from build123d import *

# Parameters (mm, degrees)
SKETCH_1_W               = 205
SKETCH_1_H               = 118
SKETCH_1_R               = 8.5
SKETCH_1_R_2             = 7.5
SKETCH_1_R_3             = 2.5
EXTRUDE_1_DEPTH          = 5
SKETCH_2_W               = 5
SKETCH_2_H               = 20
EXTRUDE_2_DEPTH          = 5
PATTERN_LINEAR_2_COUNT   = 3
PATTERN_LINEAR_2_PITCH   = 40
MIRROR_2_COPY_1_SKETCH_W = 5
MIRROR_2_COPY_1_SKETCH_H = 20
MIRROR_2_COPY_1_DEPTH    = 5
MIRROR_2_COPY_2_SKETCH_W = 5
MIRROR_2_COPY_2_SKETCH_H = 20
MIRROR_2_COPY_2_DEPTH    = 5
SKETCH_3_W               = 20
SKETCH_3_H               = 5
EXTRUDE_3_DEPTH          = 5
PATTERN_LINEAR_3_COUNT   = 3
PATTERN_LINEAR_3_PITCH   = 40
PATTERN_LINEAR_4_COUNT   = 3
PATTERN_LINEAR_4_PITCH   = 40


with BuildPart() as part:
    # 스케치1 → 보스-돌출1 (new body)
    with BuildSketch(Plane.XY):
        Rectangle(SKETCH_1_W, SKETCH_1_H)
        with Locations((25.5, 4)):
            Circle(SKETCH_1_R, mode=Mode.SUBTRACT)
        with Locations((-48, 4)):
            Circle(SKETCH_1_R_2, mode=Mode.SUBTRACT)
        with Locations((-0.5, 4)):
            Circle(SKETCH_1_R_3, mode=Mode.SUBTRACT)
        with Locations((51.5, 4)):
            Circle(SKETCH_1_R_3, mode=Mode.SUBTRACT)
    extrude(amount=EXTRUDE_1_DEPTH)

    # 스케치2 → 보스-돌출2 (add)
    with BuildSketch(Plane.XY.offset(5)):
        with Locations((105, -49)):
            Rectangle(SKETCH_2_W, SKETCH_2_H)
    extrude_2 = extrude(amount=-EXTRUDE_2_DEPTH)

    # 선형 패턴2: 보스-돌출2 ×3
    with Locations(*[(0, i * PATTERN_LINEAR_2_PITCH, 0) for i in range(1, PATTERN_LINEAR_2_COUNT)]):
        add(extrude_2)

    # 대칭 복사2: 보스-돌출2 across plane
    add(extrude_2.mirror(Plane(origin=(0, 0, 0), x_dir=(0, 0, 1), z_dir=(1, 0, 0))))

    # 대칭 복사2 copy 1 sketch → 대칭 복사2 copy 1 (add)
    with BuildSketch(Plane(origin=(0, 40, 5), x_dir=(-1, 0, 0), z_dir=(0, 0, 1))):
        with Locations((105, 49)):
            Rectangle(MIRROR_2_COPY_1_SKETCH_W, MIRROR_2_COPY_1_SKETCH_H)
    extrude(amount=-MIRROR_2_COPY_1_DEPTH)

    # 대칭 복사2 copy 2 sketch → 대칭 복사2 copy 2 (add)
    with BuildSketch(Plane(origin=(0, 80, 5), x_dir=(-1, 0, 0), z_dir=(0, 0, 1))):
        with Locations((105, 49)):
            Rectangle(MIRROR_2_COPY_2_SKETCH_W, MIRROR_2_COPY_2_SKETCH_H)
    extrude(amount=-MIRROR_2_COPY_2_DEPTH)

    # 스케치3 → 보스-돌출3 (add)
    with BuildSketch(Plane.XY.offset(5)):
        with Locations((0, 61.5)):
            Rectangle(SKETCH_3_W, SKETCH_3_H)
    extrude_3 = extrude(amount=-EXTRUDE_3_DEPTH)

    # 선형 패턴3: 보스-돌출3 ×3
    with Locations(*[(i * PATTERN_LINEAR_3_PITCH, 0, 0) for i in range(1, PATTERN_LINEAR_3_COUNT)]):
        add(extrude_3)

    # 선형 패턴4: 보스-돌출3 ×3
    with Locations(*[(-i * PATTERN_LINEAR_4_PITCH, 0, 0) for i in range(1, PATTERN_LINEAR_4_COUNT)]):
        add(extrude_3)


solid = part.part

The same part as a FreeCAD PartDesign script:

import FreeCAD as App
import Part
import Sketcher

V = App.Vector
Q = App.Units.Quantity


def add_polygon(sketch, points):
    """Adds a closed chain of lines whose ends are joined by coincident constraints."""
    first, n = sketch.GeometryCount, len(points)
    for a, b in zip(points, points[1:] + points[:1]):
        sketch.addGeometry(Part.LineSegment(App.Vector(*a, 0), App.Vector(*b, 0)), False)
    for i in range(n):
        sketch.addConstraint(Sketcher.Constraint("Coincident", first + i, 2, first + (i + 1) % n, 1))

doc = App.newDocument("Part")
body = doc.addObject("PartDesign::Body", "Body")

# Sketch on XY plane
sketch1 = body.newObject("Sketcher::SketchObject", "Sketch")
sketch1.AttachmentSupport = (doc.getObject("XY_Plane"), [""])
sketch1.MapMode = "FlatFace"
add_polygon(sketch1, [(-102.5, 59), (-102.5, -59), (102.5, -59), (102.5, 59)])  # lines 0-3
sketch1.addGeometry(Part.Circle(V(-48, 4, 0), V(0, 0, 1), 7.5), False)  # 4
sketch1.addGeometry(Part.Circle(V(-0.5, 4, 0), V(0, 0, 1), 2.5), False)  # 5
sketch1.addGeometry(Part.Circle(V(25.5, 4, 0), V(0, 0, 1), 8.5), False)  # 6
sketch1.addGeometry(Part.Circle(V(51.5, 4, 0), V(0, 0, 1), 2.5), False)  # 7
sketch1.addConstraint(Sketcher.Constraint("Vertical", 0))
sketch1.addConstraint(Sketcher.Constraint("Horizontal", 1))
sketch1.addConstraint(Sketcher.Constraint("Vertical", 2))
sketch1.addConstraint(Sketcher.Constraint("Horizontal", 3))
sketch1.addConstraint(Sketcher.Constraint("Equal", 5, 7))
sketch1.addConstraint(Sketcher.Constraint("Symmetric", 0, 2, 2, 2, -1, 1))
sketch1.addConstraint(Sketcher.Constraint("Horizontal", 4, 3, 5, 3))
sketch1.addConstraint(Sketcher.Constraint("Horizontal", 5, 3, 6, 3))
sketch1.addConstraint(Sketcher.Constraint("Horizontal", 6, 3, 7, 3))
sketch1.addConstraint(Sketcher.Constraint("Diameter", 4, Q("15 mm")))
sketch1.addConstraint(Sketcher.Constraint("Diameter", 5, Q("5 mm")))
sketch1.addConstraint(Sketcher.Constraint("Diameter", 6, Q("17 mm")))
sketch1.addConstraint(Sketcher.Constraint("DistanceX", 1, 1, 1, 2, Q("205 mm")))
sketch1.addConstraint(Sketcher.Constraint("DistanceY", 0, 2, 0, 1, Q("118 mm")))
sketch1.addConstraint(Sketcher.Constraint("DistanceX", 4, 3, -1, 1, Q("48 mm")))
sketch1.addConstraint(Sketcher.Constraint("DistanceY", -1, 1, 4, 3, Q("4 mm")))
sketch1.addConstraint(Sketcher.Constraint("DistanceX", 5, 3, 6, 3, Q("26 mm")))
sketch1.addConstraint(Sketcher.Constraint("DistanceX", 6, 3, 7, 3, Q("26 mm")))
sketch1.addConstraint(Sketcher.Constraint("DistanceX", 0, 2, 5, 3, Q("102 mm")))
pad1 = body.newObject("PartDesign::Pad", "Pad")
pad1.Profile = sketch1
pad1.Length = 5

# Sketch on XY plane
sketch2 = body.newObject("Sketcher::SketchObject", "Sketch001")
sketch2.AttachmentSupport = (doc.getObject("XY_Plane"), [""])
sketch2.MapMode = "FlatFace"
sketch2.AttachmentOffset = App.Placement(V(0, 0, 5), App.Rotation())
add_polygon(sketch2, [(102.5, -39), (102.5, -59), (107.5, -59), (107.5, -39)])  # lines 0-3
sketch2.addConstraint(Sketcher.Constraint("Vertical", 0))
sketch2.addConstraint(Sketcher.Constraint("Horizontal", 1))
sketch2.addConstraint(Sketcher.Constraint("Vertical", 2))
sketch2.addConstraint(Sketcher.Constraint("Horizontal", 3))
sketch2.addConstraint(Sketcher.Constraint("DistanceX", 1, 1, 1, 2, Q("5 mm")))
sketch2.addConstraint(Sketcher.Constraint("DistanceY", 0, 2, 0, 1, Q("20 mm")))
sketch2.addConstraint(Sketcher.Constraint("DistanceY", 0, 2, -1, 1, Q("59 mm")))
sketch2.addConstraint(Sketcher.Constraint("DistanceX", -1, 1, 0, 2, Q("102.5 mm")))
pad2 = body.newObject("PartDesign::Pad", "Pad001")
pad2.Profile = sketch2
pad2.Length = 5
pad2.Reversed = True
doc.recompute()

linearpattern = body.newObject("PartDesign::LinearPattern", "LinearPattern")
linearpattern.Originals = [pad2]
linearpattern.Direction = (doc.getObject("Y_Axis"), [""])
linearpattern.Mode = "offset"
linearpattern.Offset = 40
linearpattern.Occurrences = 3
body.Tip = linearpattern
doc.recompute()

mirrored = body.newObject("PartDesign::Mirrored", "Mirrored")
mirrored.Originals = [pad2]
mirrored.MirrorPlane = (doc.getObject("YZ_Plane"), [""])
body.Tip = mirrored

# Sketch on XY plane
sketch3 = body.newObject("Sketcher::SketchObject", "Sketch002")
sketch3.AttachmentSupport = (doc.getObject("XY_Plane"), [""])
sketch3.MapMode = "FlatFace"
sketch3.AttachmentOffset = App.Placement(V(0, 0, 5), App.Rotation())
add_polygon(sketch3, [(-102.5, -19), (-102.5, 1), (-107.5, 1), (-107.5, -19)])  # lines 0-3
sketch3.addConstraint(Sketcher.Constraint("Vertical", 0))
sketch3.addConstraint(Sketcher.Constraint("Horizontal", 1))
sketch3.addConstraint(Sketcher.Constraint("Vertical", 2))
sketch3.addConstraint(Sketcher.Constraint("Horizontal", 3))
sketch3.addConstraint(Sketcher.Constraint("DistanceX", 1, 2, 1, 1, Q("5 mm")))
sketch3.addConstraint(Sketcher.Constraint("DistanceY", 0, 1, 0, 2, Q("20 mm")))
sketch3.addConstraint(Sketcher.Constraint("DistanceY", -1, 1, 0, 2, Q("1 mm")))
sketch3.addConstraint(Sketcher.Constraint("DistanceX", 0, 2, -1, 1, Q("102.5 mm")))
pad3 = body.newObject("PartDesign::Pad", "Pad002")
pad3.Profile = sketch3
pad3.Length = 5
pad3.Reversed = True

# Sketch on XY plane
sketch4 = body.newObject("Sketcher::SketchObject", "Sketch003")
sketch4.AttachmentSupport = (doc.getObject("XY_Plane"), [""])
sketch4.MapMode = "FlatFace"
sketch4.AttachmentOffset = App.Placement(V(0, 0, 5), App.Rotation())
add_polygon(sketch4, [(-102.5, 21), (-102.5, 41), (-107.5, 41), (-107.5, 21)])  # lines 0-3
sketch4.addConstraint(Sketcher.Constraint("Vertical", 0))
sketch4.addConstraint(Sketcher.Constraint("Horizontal", 1))
sketch4.addConstraint(Sketcher.Constraint("Vertical", 2))
sketch4.addConstraint(Sketcher.Constraint("Horizontal", 3))
sketch4.addConstraint(Sketcher.Constraint("DistanceX", 1, 2, 1, 1, Q("5 mm")))
sketch4.addConstraint(Sketcher.Constraint("DistanceY", 0, 1, 0, 2, Q("20 mm")))
sketch4.addConstraint(Sketcher.Constraint("DistanceY", -1, 1, 0, 2, Q("41 mm")))
sketch4.addConstraint(Sketcher.Constraint("DistanceX", 0, 2, -1, 1, Q("102.5 mm")))
pad4 = body.newObject("PartDesign::Pad", "Pad003")
pad4.Profile = sketch4
pad4.Length = 5
pad4.Reversed = True

# Sketch on XY plane
sketch5 = body.newObject("Sketcher::SketchObject", "Sketch004")
sketch5.AttachmentSupport = (doc.getObject("XY_Plane"), [""])
sketch5.MapMode = "FlatFace"
sketch5.AttachmentOffset = App.Placement(V(0, 0, 5), App.Rotation())
add_polygon(sketch5, [(-10, 64), (-10, 59), (10, 59), (10, 64)])  # lines 0-3
sketch5.addConstraint(Sketcher.Constraint("Vertical", 0))
sketch5.addConstraint(Sketcher.Constraint("Horizontal", 1))
sketch5.addConstraint(Sketcher.Constraint("Vertical", 2))
sketch5.addConstraint(Sketcher.Constraint("Horizontal", 3))
sketch5.addConstraint(Sketcher.Constraint("DistanceX", 1, 1, 1, 2, Q("20 mm")))
sketch5.addConstraint(Sketcher.Constraint("DistanceY", 0, 2, 0, 1, Q("5 mm")))
sketch5.addConstraint(Sketcher.Constraint("DistanceX", 0, 2, -1, 1, Q("10 mm")))
sketch5.addConstraint(Sketcher.Constraint("DistanceY", -1, 1, 0, 2, Q("59 mm")))
pad5 = body.newObject("PartDesign::Pad", "Pad004")
pad5.Profile = sketch5
pad5.Length = 5
pad5.Reversed = True
doc.recompute()

linearpattern2 = body.newObject("PartDesign::LinearPattern", "LinearPattern001")
linearpattern2.Originals = [pad5]
linearpattern2.Direction = (doc.getObject("X_Axis"), [""])
linearpattern2.Mode = "offset"
linearpattern2.Offset = 40
linearpattern2.Occurrences = 3
body.Tip = linearpattern2
doc.recompute()

linearpattern3 = body.newObject("PartDesign::LinearPattern", "LinearPattern002")
linearpattern3.Originals = [pad5]
linearpattern3.Direction = (doc.getObject("X_Axis"), [""])
linearpattern3.Mode = "offset"
linearpattern3.Offset = 40
linearpattern3.Occurrences = 3
linearpattern3.Reversed = True
body.Tip = linearpattern3

doc.recompute()
